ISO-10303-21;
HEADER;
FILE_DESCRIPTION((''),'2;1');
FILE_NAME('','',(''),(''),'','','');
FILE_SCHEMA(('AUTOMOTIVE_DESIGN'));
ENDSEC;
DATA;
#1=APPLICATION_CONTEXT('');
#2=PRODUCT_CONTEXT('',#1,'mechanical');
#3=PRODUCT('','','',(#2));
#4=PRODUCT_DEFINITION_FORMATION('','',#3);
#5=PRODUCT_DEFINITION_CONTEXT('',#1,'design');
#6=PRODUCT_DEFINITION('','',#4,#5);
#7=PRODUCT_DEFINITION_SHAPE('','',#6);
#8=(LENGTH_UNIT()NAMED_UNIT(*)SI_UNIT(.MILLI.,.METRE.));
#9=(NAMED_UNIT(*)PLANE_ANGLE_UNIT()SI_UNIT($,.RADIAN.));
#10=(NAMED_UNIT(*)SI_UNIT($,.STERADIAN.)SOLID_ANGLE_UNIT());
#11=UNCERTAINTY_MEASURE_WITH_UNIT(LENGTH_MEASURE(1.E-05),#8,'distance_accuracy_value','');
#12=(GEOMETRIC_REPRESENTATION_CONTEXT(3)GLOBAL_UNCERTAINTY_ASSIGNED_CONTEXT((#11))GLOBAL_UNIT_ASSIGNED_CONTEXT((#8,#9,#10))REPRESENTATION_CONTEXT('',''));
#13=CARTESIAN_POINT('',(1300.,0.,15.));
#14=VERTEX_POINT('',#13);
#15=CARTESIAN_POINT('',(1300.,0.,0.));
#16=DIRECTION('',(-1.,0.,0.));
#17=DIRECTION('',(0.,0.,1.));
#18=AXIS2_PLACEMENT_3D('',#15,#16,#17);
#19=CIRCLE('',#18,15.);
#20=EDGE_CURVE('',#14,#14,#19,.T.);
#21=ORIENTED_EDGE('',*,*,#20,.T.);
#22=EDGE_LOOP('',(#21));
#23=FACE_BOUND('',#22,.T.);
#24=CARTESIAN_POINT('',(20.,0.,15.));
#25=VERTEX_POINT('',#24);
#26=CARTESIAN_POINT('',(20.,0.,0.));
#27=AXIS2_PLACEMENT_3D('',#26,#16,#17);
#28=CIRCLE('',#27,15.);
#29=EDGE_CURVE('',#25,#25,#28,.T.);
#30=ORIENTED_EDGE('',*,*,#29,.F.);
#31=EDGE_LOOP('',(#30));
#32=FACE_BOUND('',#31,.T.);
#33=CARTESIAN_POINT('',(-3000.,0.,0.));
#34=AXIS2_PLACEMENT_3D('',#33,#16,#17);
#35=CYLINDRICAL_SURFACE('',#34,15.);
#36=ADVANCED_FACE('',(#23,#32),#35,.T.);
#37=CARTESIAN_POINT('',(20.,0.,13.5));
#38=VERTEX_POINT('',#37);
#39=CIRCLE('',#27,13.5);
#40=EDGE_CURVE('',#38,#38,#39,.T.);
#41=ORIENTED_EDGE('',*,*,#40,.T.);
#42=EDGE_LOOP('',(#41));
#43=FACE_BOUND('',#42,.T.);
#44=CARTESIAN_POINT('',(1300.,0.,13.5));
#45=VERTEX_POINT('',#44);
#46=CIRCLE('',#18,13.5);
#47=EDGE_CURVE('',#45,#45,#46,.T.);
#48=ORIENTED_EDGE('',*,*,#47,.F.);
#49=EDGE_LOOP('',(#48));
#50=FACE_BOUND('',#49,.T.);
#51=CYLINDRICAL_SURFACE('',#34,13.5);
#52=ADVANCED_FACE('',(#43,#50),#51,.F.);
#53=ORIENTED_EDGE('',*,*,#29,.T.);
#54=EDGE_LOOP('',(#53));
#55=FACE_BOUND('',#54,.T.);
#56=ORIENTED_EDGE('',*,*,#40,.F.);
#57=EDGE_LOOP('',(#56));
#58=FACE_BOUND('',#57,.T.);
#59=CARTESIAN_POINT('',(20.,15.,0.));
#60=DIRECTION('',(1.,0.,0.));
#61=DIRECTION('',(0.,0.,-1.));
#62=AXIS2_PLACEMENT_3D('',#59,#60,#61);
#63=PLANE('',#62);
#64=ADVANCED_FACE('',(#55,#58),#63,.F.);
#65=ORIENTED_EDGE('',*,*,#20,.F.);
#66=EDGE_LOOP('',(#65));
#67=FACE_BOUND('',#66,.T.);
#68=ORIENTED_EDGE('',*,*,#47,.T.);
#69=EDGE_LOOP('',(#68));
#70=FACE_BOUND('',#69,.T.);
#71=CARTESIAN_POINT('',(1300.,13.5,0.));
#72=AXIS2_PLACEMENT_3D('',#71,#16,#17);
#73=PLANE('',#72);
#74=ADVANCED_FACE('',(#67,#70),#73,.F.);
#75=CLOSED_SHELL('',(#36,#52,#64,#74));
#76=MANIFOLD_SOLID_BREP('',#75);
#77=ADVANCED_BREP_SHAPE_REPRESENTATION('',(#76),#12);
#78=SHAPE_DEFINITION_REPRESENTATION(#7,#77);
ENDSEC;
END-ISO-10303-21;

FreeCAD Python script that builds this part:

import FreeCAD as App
import Part
import Sketcher

V = App.Vector

doc = App.newDocument("Part")
body = doc.addObject("PartDesign::Body", "Body")

# Sketch on XY plane
sketch1 = body.newObject("Sketcher::SketchObject", "Sketch")
sketch1.AttachmentSupport = (doc.getObject("XY_Plane"), [""])
sketch1.MapMode = "FlatFace"
sketch1.addGeometry([
    Part.LineSegment(V(20, 15, 0), V(20, 13.5, 0)),
    Part.LineSegment(V(20, 13.5, 0), V(1300, 13.5, 0)),
    Part.LineSegment(V(1300, 13.5, 0), V(1300, 15, 0)),
    Part.LineSegment(V(1300, 15, 0), V(20, 15, 0)),
], False)
sketch1.addConstraint([
    Sketcher.Constraint("Coincident", 0, 2, 1, 1),
    Sketcher.Constraint("Coincident", 1, 2, 2, 1),
    Sketcher.Constraint("Coincident", 2, 2, 3, 1),
    Sketcher.Constraint("Coincident", 3, 2, 0, 1),
    Sketcher.Constraint("Vertical", 0),
    Sketcher.Constraint("Horizontal", 1),
    Sketcher.Constraint("Vertical", 2),
    Sketcher.Constraint("Horizontal", 3),
    Sketcher.Constraint("DistanceX", 1, 1, 1, 2, 1280.0),
    Sketcher.Constraint("DistanceY", 0, 2, 0, 1, 1.5),
    Sketcher.Constraint("DistanceX", -1, 1, 0, 2, 20.0),
    Sketcher.Constraint("DistanceY", -1, 1, 2, 2, 15.0),
])
revolution = body.newObject("PartDesign::Revolution", "Revolution")
revolution.Profile = sketch1
revolution.ReferenceAxis = (sketch1, ["H_Axis"])
revolution.Angle = 360

doc.recompute()
